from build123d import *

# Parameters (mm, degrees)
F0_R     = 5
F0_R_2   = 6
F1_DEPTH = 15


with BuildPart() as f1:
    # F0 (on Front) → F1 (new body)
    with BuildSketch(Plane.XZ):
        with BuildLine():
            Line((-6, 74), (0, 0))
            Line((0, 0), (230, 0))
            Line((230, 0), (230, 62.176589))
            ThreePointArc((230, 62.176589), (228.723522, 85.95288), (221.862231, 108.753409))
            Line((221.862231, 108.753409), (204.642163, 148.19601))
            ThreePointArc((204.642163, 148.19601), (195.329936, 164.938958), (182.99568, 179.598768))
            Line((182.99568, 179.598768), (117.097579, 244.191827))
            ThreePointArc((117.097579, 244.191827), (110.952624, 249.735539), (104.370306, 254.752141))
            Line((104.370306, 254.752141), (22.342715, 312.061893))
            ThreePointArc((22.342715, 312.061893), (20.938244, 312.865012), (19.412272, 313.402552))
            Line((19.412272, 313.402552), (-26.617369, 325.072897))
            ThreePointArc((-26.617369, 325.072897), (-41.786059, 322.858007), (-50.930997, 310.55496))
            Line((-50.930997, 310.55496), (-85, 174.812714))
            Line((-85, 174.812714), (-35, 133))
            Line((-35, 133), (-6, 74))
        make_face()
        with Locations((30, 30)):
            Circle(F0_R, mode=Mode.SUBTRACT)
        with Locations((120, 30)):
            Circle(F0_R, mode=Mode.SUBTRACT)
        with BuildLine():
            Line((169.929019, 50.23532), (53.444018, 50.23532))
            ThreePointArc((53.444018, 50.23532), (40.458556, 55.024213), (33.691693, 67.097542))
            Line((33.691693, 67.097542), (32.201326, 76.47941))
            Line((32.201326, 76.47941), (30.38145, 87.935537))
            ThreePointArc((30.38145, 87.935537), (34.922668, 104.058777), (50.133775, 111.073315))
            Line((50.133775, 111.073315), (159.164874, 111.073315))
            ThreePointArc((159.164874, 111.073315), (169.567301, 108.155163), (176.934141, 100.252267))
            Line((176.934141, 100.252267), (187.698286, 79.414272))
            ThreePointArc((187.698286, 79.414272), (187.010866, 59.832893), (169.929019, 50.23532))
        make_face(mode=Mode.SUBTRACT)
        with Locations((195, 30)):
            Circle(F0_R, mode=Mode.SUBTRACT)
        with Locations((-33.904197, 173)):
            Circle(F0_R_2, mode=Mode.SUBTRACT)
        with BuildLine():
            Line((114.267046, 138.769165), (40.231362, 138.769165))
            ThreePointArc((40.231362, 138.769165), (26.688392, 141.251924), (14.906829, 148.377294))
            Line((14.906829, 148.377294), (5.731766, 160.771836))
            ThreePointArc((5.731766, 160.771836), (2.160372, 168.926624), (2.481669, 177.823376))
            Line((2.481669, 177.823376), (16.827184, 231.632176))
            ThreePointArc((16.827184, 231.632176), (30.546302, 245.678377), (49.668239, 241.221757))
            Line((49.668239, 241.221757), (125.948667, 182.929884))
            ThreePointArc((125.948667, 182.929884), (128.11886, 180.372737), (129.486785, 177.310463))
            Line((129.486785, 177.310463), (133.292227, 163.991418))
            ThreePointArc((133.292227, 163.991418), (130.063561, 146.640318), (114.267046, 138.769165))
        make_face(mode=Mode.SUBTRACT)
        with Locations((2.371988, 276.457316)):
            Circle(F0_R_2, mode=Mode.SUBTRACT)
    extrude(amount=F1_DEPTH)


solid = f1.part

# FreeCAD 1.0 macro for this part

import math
import FreeCAD as App
import Part
import Sketcher

V = App.Vector
Q = App.Units.Quantity

doc = App.newDocument("Part")
params = doc.addObject("Spreadsheet::Sheet", "Params")
for row, (alias, value) in enumerate([
    ("sketch1_diameter", "10 mm"),
    ("sketch1_diameter2", "10 mm"),
    ("sketch1_diameter3", "10 mm"),
    ("sketch1_diameter4", "12 mm"),
    ("sketch1_diameter5", "12 mm"),
    ("pad1_length", "15 mm"),
], start=1):
    params.set(f"A{row}", alias)
    params.set(f"B{row}", "=" + value)
    params.setAlias(f"B{row}", alias)

body = doc.addObject("PartDesign::Body", "Body")

sketch1 = doc.addObject("Sketcher::SketchObject", "Sketch")
body.addObject(sketch1)
sketch1.AttachmentSupport = (doc.XZ_Plane, [""])
sketch1.MapMode = "FlatFace"
sketch1.addGeometry([
    Part.LineSegment(V(-6, 74, 0), V(0, 0, 0)),
    Part.LineSegment(V(0, 0, 0), V(230, 0, 0)),
    Part.LineSegment(V(230, 0, 0), V(230, 62.176589, 0)),
    Part.ArcOfCircle(Part.Circle(V(130.215732, 68.741881, 0), V(0, 0, 1), 100.000016), math.radians(-3.764342), math.radians(23.585382)),
    Part.LineSegment(V(221.862231, 108.753409, 0), V(204.642163, 148.19601, 0)),
    Part.ArcOfCircle(Part.Circle(V(112.995685, 108.184486, 0), V(0, 0, 1), 99.999994), math.radians(23.585384), math.radians(45.572997)),
    Part.LineSegment(V(182.99568, 179.598768, 0), V(117.097579, 244.191827, 0)),
    Part.ArcOfCircle(Part.Circle(V(47.097535, 172.777491, 0), V(0, 0, 1), 100.000068), math.radians(45.572999), math.radians(55.05937)),
    Part.LineSegment(V(104.370306, 254.752141, 0), V(22.342715, 312.061893, 0)),
    Part.ArcOfCircle(Part.Circle(V(17.209606, 304.714871, 0), V(0, 0, 1), 8.962563), math.radians(55.059339), math.radians(75.773076)),
    Part.LineSegment(V(19.412272, 313.402552, 0), V(-26.617369, 325.072897, 0)),
    Part.ArcOfCircle(Part.Circle(V(-31.532643, 305.686303, 0), V(0, 0, 1), 19.999998), math.radians(75.773027), math.radians(165.910761)),
    Part.LineSegment(V(-50.930997, 310.55496, 0), V(-85, 174.812714, 0)),
    Part.LineSegment(V(-85, 174.812714, 0), V(-35, 133, 0)),
    Part.LineSegment(V(-35, 133, 0), V(-6, 74, 0)),
    Part.Circle(V(30, 30, 0), V(0, 0, 1), 5),
    Part.Circle(V(120, 30, 0), V(0, 0, 1), 5),
    Part.ArcOfCircle(Part.Circle(V(169.929018, 70.235321, 0), V(0, 0, 1), 20.000001), math.radians(-89.999998), math.radians(27.319216)),
    Part.LineSegment(V(169.929019, 50.23532, 0), V(53.444018, 50.23532, 0)),
    Part.ArcOfCircle(Part.Circle(V(53.444018, 70.23532, 0), V(0, 0, 1), 20), math.radians(-170.973638), math.radians(-90)),
    Part.LineSegment(V(33.691693, 67.097542, 0), V(32.201326, 76.47941, 0)),
    Part.LineSegment(V(32.201326, 76.47941, 0), V(30.38145, 87.935537, 0)),
    Part.ArcOfCircle(Part.Circle(V(50.133775, 91.073315, 0), V(0, 0, 1), 20), math.radians(90), math.radians(189.026363)),
    Part.LineSegment(V(50.133775, 111.073315, 0), V(159.164874, 111.073315, 0)),
    Part.ArcOfCircle(Part.Circle(V(159.164875, 91.073317, 0), V(0, 0, 1), 19.999998), math.radians(27.319216), math.radians(90.000004)),
    Part.LineSegment(V(176.934141, 100.252267, 0), V(187.698286, 79.414272, 0)),
    Part.Circle(V(195, 30, 0), V(0, 0, 1), 5),
    Part.Circle(V(-33.904197, 173, 0), V(0, 0, 1), 6),
    Part.ArcOfCircle(Part.Circle(V(114.267046, 158.555652, 0), V(0, 0, 1), 19.786487), math.radians(-90.000001), math.radians(15.945397)),
    Part.LineSegment(V(114.267046, 138.769165, 0), V(40.231362, 138.769165, 0)),
    Part.ArcOfCircle(Part.Circle(V(40.231359, 176.947667, 0), V(0, 0, 1), 38.178502), math.radians(-131.5535), math.radians(-89.999995)),
    Part.LineSegment(V(14.906829, 148.377294, 0), V(5.731766, 160.771836, 0)),
    Part.ArcOfCircle(Part.Circle(V(21.806682, 172.671295, 0), V(0, 0, 1), 20.000001), math.radians(165.07206), math.radians(216.510702)),
    Part.LineSegment(V(2.481669, 177.823376, 0), V(16.827184, 231.632176, 0)),
    Part.ArcOfCircle(Part.Circle(V(36.152195, 226.480098, 0), V(0, 0, 1), 19.999999), math.radians(47.483521), math.radians(165.072065)),
    Part.LineSegment(V(49.668239, 241.221757, 0), V(125.948667, 182.929884, 0)),
    Part.ArcOfCircle(Part.Circle(V(118.078101, 174.050842, 0), V(0, 0, 1), 11.86521), math.radians(15.945383), math.radians(48.445559)),
    Part.LineSegment(V(129.486785, 177.310463, 0), V(133.292227, 163.991418, 0)),
    Part.Circle(V(2.371988, 276.457316, 0), V(0, 0, 1), 6),
], False)
sketch1.addConstraint([
    Sketcher.Constraint("Coincident", 0, 2, 1, 1),
    Sketcher.Constraint("Coincident", 1, 2, 2, 1),
    Sketcher.Constraint("Coincident", 2, 2, 3, 1),
    Sketcher.Constraint("Coincident", 3, 2, 4, 1),
    Sketcher.Constraint("Coincident", 4, 2, 5, 1),
    Sketcher.Constraint("Coincident", 5, 2, 6, 1),
    Sketcher.Constraint("Coincident", 6, 2, 7, 1),
    Sketcher.Constraint("Coincident", 7, 2, 8, 1),
    Sketcher.Constraint("Coincident", 8, 2, 9, 1),
    Sketcher.Constraint("Coincident", 9, 2, 10, 1),
    Sketcher.Constraint("Coincident", 10, 2, 11, 1),
    Sketcher.Constraint("Coincident", 11, 2, 12, 1),
    Sketcher.Constraint("Coincident", 12, 2, 13, 1),
    Sketcher.Constraint("Coincident", 13, 2, 14, 1),
    Sketcher.Constraint("Coincident", 14, 2, 0, 1),
    Sketcher.Constraint("Coincident", 17, 1, 18, 1),
    Sketcher.Constraint("Coincident", 18, 2, 19, 2),
    Sketcher.Constraint("Coincident", 19, 1, 20, 1),
    Sketcher.Constraint("Coincident", 20, 2, 21, 1),
    Sketcher.Constraint("Coincident", 21, 2, 22, 2),
    Sketcher.Constraint("Coincident", 22, 1, 23, 1),
    Sketcher.Constraint("Coincident", 23, 2, 24, 2),
    Sketcher.Constraint("Coincident", 24, 1, 25, 1),
    Sketcher.Constraint("Coincident", 25, 2, 17, 2),
    Sketcher.Constraint("Coincident", 28, 1, 29, 1),
    Sketcher.Constraint("Coincident", 29, 2, 30, 2),
    Sketcher.Constraint("Coincident", 30, 1, 31, 1),
    Sketcher.Constraint("Coincident", 31, 2, 32, 2),
    Sketcher.Constraint("Coincident", 32, 1, 33, 1),
    Sketcher.Constraint("Coincident", 33, 2, 34, 2),
    Sketcher.Constraint("Coincident", 34, 1, 35, 1),
    Sketcher.Constraint("Coincident", 35, 2, 36, 2),
    Sketcher.Constraint("Coincident", 36, 1, 37, 1),
    Sketcher.Constraint("Coincident", 37, 2, 28, 2),
    Sketcher.Constraint("Horizontal", 1),
    Sketcher.Constraint("Vertical", 2),
    Sketcher.Constraint("Horizontal", 18),
    Sketcher.Constraint("Horizontal", 23),
    Sketcher.Constraint("Horizontal", 29),
    Sketcher.Constraint("Coincident", 0, 2, -1, 1),
    Sketcher.Constraint("Diameter", 15, Q("10 mm")),
    Sketcher.Constraint("Diameter", 16, Q("10 mm")),
    Sketcher.Constraint("Diameter", 26, Q("10 mm")),
    Sketcher.Constraint("Diameter", 27, Q("12 mm")),
    Sketcher.Constraint("Diameter", 38, Q("12 mm")),
    Sketcher.Constraint("Radius", 11, Q("19.999998 mm")),
    Sketcher.Constraint("Radius", 17, Q("20.000001 mm")),
    Sketcher.Constraint("Radius", 19, Q("20 mm")),
    Sketcher.Constraint("Radius", 22, Q("20 mm")),
    Sketcher.Constraint("Radius", 24, Q("19.999998 mm")),
    Sketcher.Constraint("Radius", 32, Q("20.000001 mm")),
    Sketcher.Constraint("Radius", 34, Q("19.999999 mm")),
    Sketcher.Constraint("DistanceX", 1, 1, 1, 2, Q("230 mm")),
    Sketcher.Constraint("DistanceX", -1, 1, 15, 3, Q("30 mm")),
    Sketcher.Constraint("DistanceY", -1, 1, 15, 3, Q("30 mm")),
    Sketcher.Constraint("DistanceX", -1, 1, 16, 3, Q("120 mm")),
    Sketcher.Constraint("DistanceY", -1, 1, 16, 3, Q("30 mm")),
    Sketcher.Constraint("DistanceX", -1, 1, 26, 3, Q("195 mm")),
    Sketcher.Constraint("DistanceY", -1, 1, 26, 3, Q("30 mm")),
    Sketcher.Constraint("DistanceY", -1, 1, 27, 3, Q("173 mm")),
    Sketcher.Constraint("DistanceX", 12, 2, -1, 1, Q("85 mm")),
    Sketcher.Constraint("DistanceX", 13, 2, -1, 1, Q("35 mm")),
    Sketcher.Constraint("DistanceY", -1, 1, 13, 2, Q("133 mm")),
    Sketcher.Constraint("DistanceX", 14, 2, -1, 1, Q("6 mm")),
    Sketcher.Constraint("DistanceY", -1, 1, 14, 2, Q("74 mm")),
    Sketcher.Constraint("DistanceX", 18, 2, 18, 1, Q("116.485001 mm")),
    Sketcher.Constraint("Radius", 7, Q("100.000068 mm")),
    Sketcher.Constraint("Radius", 36, Q("11.86521 mm")),
    Sketcher.Constraint("DistanceX", 23, 1, 23, 2, Q("109.031099 mm")),
    Sketcher.Constraint("Radius", 3, Q("100.000016 mm")),
    Sketcher.Constraint("Radius", 5, Q("99.999994 mm")),
    Sketcher.Constraint("Radius", 9, Q("8.962563 mm")),
    Sketcher.Constraint("Radius", 28, Q("19.786487 mm")),
    Sketcher.Constraint("Radius", 30, Q("38.178502 mm")),
    Sketcher.Constraint("DistanceY", 30, 1, 32, 3, Q("24.294001 mm")),
    Sketcher.Constraint("Distance", 6, Q("92.275798 mm")),
    Sketcher.Constraint("DistanceY", 2, 1, 2, 2, Q("62.176589 mm")),
    Sketcher.Constraint("DistanceX", -1, 1, 36, 3, Q("118.078101 mm")),
    Sketcher.Constraint("DistanceX", 3, 3, 3, 2, Q("91.646499 mm")),
    Sketcher.Constraint("DistanceY", 3, 2, 4, 2, Q("39.442601 mm")),
    Sketcher.Constraint("DistanceX", 6, 2, 5, 2, Q("65.898101 mm")),
    Sketcher.Constraint("DistanceY", 36, 3, 7, 2, Q("80.701299 mm")),
    Sketcher.Constraint("DistanceY", 32, 1, 33, 2, Q("53.8088 mm")),
    Sketcher.Constraint("DistanceY", 28, 1, 36, 1, Q("38.541298 mm")),
    Sketcher.Constraint("Distance", 4, Q("43.037768 mm")),
    Sketcher.Constraint("Distance", 10, Q("47.486049 mm")),
    Sketcher.Constraint("Distance", 12, Q("139.952329 mm")),
    Sketcher.Constraint("DistanceX", 29, 2, 29, 1, Q("74.035684 mm")),
    Sketcher.Constraint("DistanceY", -1, 1, 3, 3, Q("68.741881 mm")),
    Sketcher.Constraint("DistanceY", -1, 1, 7, 3, Q("172.777491 mm")),
    Sketcher.Constraint("DistanceY", -1, 1, 9, 3, Q("304.714871 mm")),
    Sketcher.Constraint("DistanceX", -1, 1, 17, 3, Q("169.929018 mm")),
    Sketcher.Constraint("DistanceY", -1, 1, 17, 3, Q("70.235321 mm")),
    Sketcher.Constraint("DistanceY", -1, 1, 28, 3, Q("158.555652 mm")),
    Sketcher.Constraint("DistanceX", -1, 1, 30, 3, Q("40.231359 mm")),
    Sketcher.Constraint("DistanceX", -1, 1, 32, 3, Q("21.806682 mm")),
    Sketcher.Constraint("DistanceY", -1, 1, 36, 3, Q("174.050842 mm")),
    Sketcher.Constraint("DistanceX", -1, 1, 38, 3, Q("2.371988 mm")),
    Sketcher.Constraint("DistanceX", -1, 1, 5, 2, Q("182.99568 mm")),
    Sketcher.Constraint("DistanceY", -1, 1, 5, 2, Q("179.598768 mm")),
    Sketcher.Constraint("DistanceX", -1, 1, 9, 2, Q("19.412272 mm")),
    Sketcher.Constraint("DistanceY", -1, 1, 9, 2, Q("313.402552 mm")),
    Sketcher.Constraint("DistanceX", 10, 2, -1, 1, Q("26.617369 mm")),
    Sketcher.Constraint("DistanceY", -1, 1, 11, 2, Q("310.55496 mm")),
    Sketcher.Constraint("DistanceX", -1, 1, 17, 1, Q("169.929019 mm")),
    Sketcher.Constraint("DistanceY", -1, 1, 20, 2, Q("76.47941 mm")),
    Sketcher.Constraint("DistanceX", -1, 1, 21, 2, Q("30.38145 mm")),
    Sketcher.Constraint("DistanceX", -1, 1, 24, 1, Q("176.934141 mm")),
    Sketcher.Constraint("DistanceY", -1, 1, 25, 2, Q("79.414272 mm")),
    Sketcher.Constraint("DistanceX", -1, 1, 29, 2, Q("40.231362 mm")),
    Sketcher.Constraint("DistanceX", -1, 1, 30, 1, Q("14.906829 mm")),
    Sketcher.Constraint("DistanceX", -1, 1, 32, 1, Q("2.481669 mm")),
    Sketcher.Constraint("DistanceX", -1, 1, 34, 1, Q("49.668239 mm")),
    Sketcher.Constraint("DistanceY", -1, 1, 37, 2, Q("163.991418 mm")),
    Sketcher.Constraint("DistanceX", 11, 3, 9, 3, Q("48.74225 mm")),
    Sketcher.Constraint("DistanceX", 22, 3, 5, 3, Q("62.861911 mm")),
    Sketcher.Constraint("DistanceY", 22, 3, 5, 3, Q("17.111171 mm")),
    Sketcher.Constraint("DistanceX", 5, 3, 24, 3, Q("46.16919 mm")),
    Sketcher.Constraint("DistanceX", 27, 3, 7, 3, Q("81.001732 mm")),
    Sketcher.Constraint("DistanceX", 5, 3, 28, 3, Q("1.271361 mm")),
    Sketcher.Constraint("DistanceY", 30, 3, 34, 3, Q("49.532431 mm")),
    Sketcher.Constraint("DistanceX", 34, 3, 7, 3, Q("10.94534 mm")),
    Sketcher.Constraint("DistanceY", 34, 3, 38, 3, Q("49.977218 mm")),
    Sketcher.Constraint("DistanceX", 9, 3, 8, 2, Q("5.133109 mm")),
    Sketcher.Constraint("DistanceX", 19, 1, 22, 3, Q("16.442082 mm")),
    Sketcher.Constraint("DistanceX", 20, 2, 19, 3, Q("21.242692 mm")),
    Sketcher.Constraint("DistanceX", 20, 2, 22, 3, Q("17.932449 mm")),
    Sketcher.Constraint("DistanceX", 20, 2, 22, 1, Q("17.932449 mm")),
    Sketcher.Constraint("DistanceY", 30, 1, 31, 2, Q("12.394542 mm")),
    Sketcher.Constraint("DistanceX", 28, 3, 35, 2, Q("11.681621 mm")),
])
sketch1.setExpression("Constraints[40]", "Params.sketch1_diameter")
sketch1.setExpression("Constraints[41]", "Params.sketch1_diameter2")
sketch1.setExpression("Constraints[42]", "Params.sketch1_diameter3")
sketch1.setExpression("Constraints[43]", "Params.sketch1_diameter4")
sketch1.setExpression("Constraints[44]", "Params.sketch1_diameter5")
pad1 = doc.addObject("PartDesign::Pad", "Pad")
body.addObject(pad1)
pad1.Profile = sketch1
pad1.setExpression("Length", "Params.pad1_length")

doc.recompute()
